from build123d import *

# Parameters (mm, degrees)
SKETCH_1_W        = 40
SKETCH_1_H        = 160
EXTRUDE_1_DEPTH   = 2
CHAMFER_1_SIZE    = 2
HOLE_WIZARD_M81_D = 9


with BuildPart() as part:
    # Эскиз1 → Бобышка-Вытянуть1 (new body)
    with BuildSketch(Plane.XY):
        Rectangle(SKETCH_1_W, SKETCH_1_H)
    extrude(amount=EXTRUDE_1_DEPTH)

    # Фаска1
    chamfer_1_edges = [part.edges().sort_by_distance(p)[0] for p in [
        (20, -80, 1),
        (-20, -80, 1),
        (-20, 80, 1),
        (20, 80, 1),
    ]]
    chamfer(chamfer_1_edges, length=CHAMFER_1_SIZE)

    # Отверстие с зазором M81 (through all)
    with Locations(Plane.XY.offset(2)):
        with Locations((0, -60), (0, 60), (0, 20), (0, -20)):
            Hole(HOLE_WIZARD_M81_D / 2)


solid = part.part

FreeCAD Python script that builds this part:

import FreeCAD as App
import Part
import Sketcher
from FreeCAD import Vector
Q = App.Units.Quantity


def edges_at(feature, points):
    """Names of the edges that pass closest to the given points."""
    edges = feature.Shape.Edges
    near = lambda p: min(range(len(edges)), key=lambda i: edges[i].distToShape(Part.Vertex(*p))[0])
    return sorted({f"Edge{near(p) + 1}" for p in points})


def add_polygon(sketch, points):
    """Adds a closed chain of lines whose ends are joined by coincident constraints."""
    first, n = sketch.GeometryCount, len(points)
    for a, b in zip(points, points[1:] + points[:1]):
        sketch.addGeometry(Part.LineSegment(App.Vector(*a, 0), App.Vector(*b, 0)), False)
    for i in range(n):
        sketch.addConstraint(Sketcher.Constraint("Coincident", first + i, 2, first + (i + 1) % n, 1))

doc = App.newDocument("Part")
body = doc.addObject("PartDesign::Body", "Body")

# Sketch on XY plane
sketch1 = body.newObject("Sketcher::SketchObject", "Sketch")
sketch1.AttachmentSupport = (doc.getObject("XY_Plane"), [""])
sketch1.MapMode = "FlatFace"
add_polygon(sketch1, [(-20, 80), (-20, -80), (20, -80), (20, 80)])  # lines 0-3
sketch1.addConstraint([
    Sketcher.Constraint("Vertical", 0),
    Sketcher.Constraint("Horizontal", 1),
    Sketcher.Constraint("Vertical", 2),
    Sketcher.Constraint("Horizontal", 3),
    Sketcher.Constraint("Symmetric", 0, 2, 2, 2, -1, 1),
    Sketcher.Constraint("DistanceX", 1, 1, 1, 2, Q("40 mm")),
    Sketcher.Constraint("DistanceY", 0, 2, 0, 1, Q("160 mm")),
])
pad1 = body.newObject("PartDesign::Pad", "Pad")
pad1.Profile = sketch1
pad1.Length = 2
doc.recompute()

chamfer = body.newObject("PartDesign::Chamfer", "Chamfer")
chamfer.Base = (pad1, edges_at(pad1, [
    (20, -80, 1),
    (-20, -80, 1),
    (-20, 80, 1),
    (20, 80, 1),
]))
chamfer.Size = 2

# Sketch on XY plane
sketch2 = body.newObject("Sketcher::SketchObject", "Sketch001")
sketch2.AttachmentSupport = (doc.getObject("XY_Plane"), [""])
sketch2.MapMode = "FlatFace"
sketch2.AttachmentOffset = App.Placement(Vector(0, 0, 2), App.Rotation())
sketch2.addGeometry([
    Part.Circle(Vector(0, -60, 0), Vector(0, 0, 1), 4.5),
    Part.Circle(Vector(0, 60, 0), Vector(0, 0, 1), 4.5),
    Part.Circle(Vector(0, 20, 0), Vector(0, 0, 1), 4.5),
    Part.Circle(Vector(0, -20, 0), Vector(0, 0, 1), 4.5),
], False)
sketch2.addConstraint([
    Sketcher.Constraint("Equal", 0, 1),
    Sketcher.Constraint("Equal", 1, 2),
    Sketcher.Constraint("Equal", 2, 3),
    Sketcher.Constraint("Symmetric", 0, 3, 1, 3, -1, 1),
    Sketcher.Constraint("Symmetric", 2, 3, 3, 3, -1, 1),
    Sketcher.Constraint("PointOnObject", 0, 3, -2),
    Sketcher.Constraint("PointOnObject", 2, 3, -2),
    Sketcher.Constraint("Diameter", 0, Q("9 mm")),
    Sketcher.Constraint("DistanceY", 0, 3, -1, 1, Q("60 mm")),
    Sketcher.Constraint("DistanceY", -1, 1, 2, 3, Q("20 mm")),
])
doc.recompute()
hole = body.newObject("PartDesign::Hole", "Hole")
hole.Profile = sketch2
hole.ThreadType = "None"
hole.Diameter = 9
hole.DepthType = "ThroughAll"

doc.recompute()
